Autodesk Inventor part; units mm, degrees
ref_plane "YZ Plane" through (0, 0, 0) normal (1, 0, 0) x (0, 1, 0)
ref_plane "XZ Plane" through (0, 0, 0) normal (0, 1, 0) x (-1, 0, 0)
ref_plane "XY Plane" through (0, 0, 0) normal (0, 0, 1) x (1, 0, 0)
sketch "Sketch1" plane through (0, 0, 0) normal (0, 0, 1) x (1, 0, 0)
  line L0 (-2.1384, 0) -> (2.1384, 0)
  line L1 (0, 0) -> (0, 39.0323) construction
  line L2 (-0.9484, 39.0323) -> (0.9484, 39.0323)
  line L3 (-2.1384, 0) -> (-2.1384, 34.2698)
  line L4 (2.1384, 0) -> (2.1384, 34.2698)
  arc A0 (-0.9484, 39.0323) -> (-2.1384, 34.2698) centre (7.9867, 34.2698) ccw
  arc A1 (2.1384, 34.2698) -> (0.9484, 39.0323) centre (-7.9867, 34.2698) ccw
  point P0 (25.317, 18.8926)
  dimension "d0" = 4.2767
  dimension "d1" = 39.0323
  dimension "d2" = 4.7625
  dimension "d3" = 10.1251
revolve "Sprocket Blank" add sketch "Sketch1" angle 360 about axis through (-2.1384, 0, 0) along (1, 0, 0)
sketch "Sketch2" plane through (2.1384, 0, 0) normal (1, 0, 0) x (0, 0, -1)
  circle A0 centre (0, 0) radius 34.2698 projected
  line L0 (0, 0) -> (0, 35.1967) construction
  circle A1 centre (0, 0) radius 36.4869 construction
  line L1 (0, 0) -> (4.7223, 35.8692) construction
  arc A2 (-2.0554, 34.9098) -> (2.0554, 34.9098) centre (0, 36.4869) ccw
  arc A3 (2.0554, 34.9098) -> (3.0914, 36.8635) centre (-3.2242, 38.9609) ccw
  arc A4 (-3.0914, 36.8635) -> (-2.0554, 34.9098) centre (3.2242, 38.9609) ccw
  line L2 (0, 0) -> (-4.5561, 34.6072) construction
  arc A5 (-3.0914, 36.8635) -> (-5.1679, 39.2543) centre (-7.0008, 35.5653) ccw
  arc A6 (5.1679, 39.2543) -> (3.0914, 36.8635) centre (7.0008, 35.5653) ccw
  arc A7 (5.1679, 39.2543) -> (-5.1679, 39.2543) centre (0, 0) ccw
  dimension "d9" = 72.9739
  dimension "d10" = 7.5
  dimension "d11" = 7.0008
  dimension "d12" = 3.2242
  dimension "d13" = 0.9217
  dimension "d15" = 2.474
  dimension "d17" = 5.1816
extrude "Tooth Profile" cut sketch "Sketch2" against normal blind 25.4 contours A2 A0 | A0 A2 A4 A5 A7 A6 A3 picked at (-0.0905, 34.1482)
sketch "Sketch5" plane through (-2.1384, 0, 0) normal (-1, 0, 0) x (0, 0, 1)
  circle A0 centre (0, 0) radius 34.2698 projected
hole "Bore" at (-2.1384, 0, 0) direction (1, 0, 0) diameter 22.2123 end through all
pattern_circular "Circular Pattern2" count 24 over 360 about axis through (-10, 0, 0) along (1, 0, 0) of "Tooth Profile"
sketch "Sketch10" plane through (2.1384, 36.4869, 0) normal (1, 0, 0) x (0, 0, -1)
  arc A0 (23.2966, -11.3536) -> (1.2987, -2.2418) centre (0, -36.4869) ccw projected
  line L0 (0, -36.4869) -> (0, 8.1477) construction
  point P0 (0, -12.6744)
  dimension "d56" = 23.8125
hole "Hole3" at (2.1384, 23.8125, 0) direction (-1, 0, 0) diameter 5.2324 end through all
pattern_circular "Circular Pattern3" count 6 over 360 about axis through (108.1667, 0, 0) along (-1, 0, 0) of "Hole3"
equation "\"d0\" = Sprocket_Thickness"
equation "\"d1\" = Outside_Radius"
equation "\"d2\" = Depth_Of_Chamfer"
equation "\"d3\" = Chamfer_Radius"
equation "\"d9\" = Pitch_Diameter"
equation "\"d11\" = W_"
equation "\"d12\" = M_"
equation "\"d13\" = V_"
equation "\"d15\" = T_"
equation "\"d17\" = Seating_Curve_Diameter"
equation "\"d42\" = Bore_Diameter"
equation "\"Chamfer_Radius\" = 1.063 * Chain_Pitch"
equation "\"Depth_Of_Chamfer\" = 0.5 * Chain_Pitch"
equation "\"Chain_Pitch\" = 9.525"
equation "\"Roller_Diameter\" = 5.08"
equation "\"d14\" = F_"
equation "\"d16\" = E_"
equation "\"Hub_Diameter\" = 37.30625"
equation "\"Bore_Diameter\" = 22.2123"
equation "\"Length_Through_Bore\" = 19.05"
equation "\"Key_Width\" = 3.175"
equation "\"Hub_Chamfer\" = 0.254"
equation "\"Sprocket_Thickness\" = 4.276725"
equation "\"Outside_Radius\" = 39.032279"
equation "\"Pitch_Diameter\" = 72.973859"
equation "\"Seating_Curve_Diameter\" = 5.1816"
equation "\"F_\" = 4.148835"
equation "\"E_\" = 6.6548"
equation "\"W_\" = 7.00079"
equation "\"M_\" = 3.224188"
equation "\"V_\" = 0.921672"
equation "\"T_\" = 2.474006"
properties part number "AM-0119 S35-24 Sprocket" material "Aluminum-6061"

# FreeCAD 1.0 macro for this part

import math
import FreeCAD as App
import Part
import Sketcher
from FreeCAD import Vector
Q = App.Units.Quantity

doc = App.newDocument("Part")
params = doc.addObject("Spreadsheet::Sheet", "Params")
for row, (alias, value) in enumerate([
    ("revolution_angle", "360 deg"),
    ("sketch2_radius", "0.102 in"),
    ("sketch2_radius2", "0.262 in"),
    ("pocket1_length", "1 in"),
    ("hole_diameter", "0.8745 in"),
    ("sketch4_diameter", "0.206 in"),
    ("hole2_diameter", "0.206 in"),
], start=1):
    params.set(f"A{row}", alias)
    params.set(f"B{row}", "=" + value)
    params.setAlias(f"B{row}", alias)

body = doc.addObject("PartDesign::Body", "Body")

# Sketch on XY plane
sketch1 = body.newObject("Sketcher::SketchObject", "Sketch")
sketch1.AttachmentSupport = (doc.getObject("XY_Plane"), [""])
sketch1.MapMode = "FlatFace"
sketch1.addGeometry([
    Part.LineSegment(Vector(-2.1, 34.3, 0), Vector(-2.1, 0, 0)),  # 0
    Part.LineSegment(Vector(-2.1, 0, 0), Vector(2.1, 0, 0)),  # 1
    Part.LineSegment(Vector(2.1, 0, 0), Vector(2.1, 34.3, 0)),  # 2
    Part.ArcOfCircle(Part.Circle(Vector(-8, 34.3, 0), Vector(0, 0, 1), 10.1), math.radians(0), math.radians(28)),  # 3
    Part.LineSegment(Vector(0.9, 39, 0), Vector(-0.9, 39, 0)),  # 4
    Part.ArcOfCircle(Part.Circle(Vector(8, 34.3, 0), Vector(0, 0, 1), 10.1), math.radians(152), math.radians(180)),  # 5
], False)
sketch1.addConstraint([
    Sketcher.Constraint("Coincident", 0, 2, 1, 1),
    Sketcher.Constraint("Coincident", 1, 2, 2, 1),
    Sketcher.Constraint("Tangent", 2, 2, 3, 1),
    Sketcher.Constraint("Coincident", 3, 2, 4, 1),
    Sketcher.Constraint("Coincident", 4, 2, 5, 1),
    Sketcher.Constraint("Tangent", 5, 2, 0, 1),
    Sketcher.Constraint("Vertical", 0),
    Sketcher.Constraint("Horizontal", 1),
    Sketcher.Constraint("Vertical", 2),
    Sketcher.Constraint("Horizontal", 4),
    Sketcher.Constraint("Equal", 3, 5),
    Sketcher.Constraint("Symmetric", 0, 2, 1, 2, -1, 1),
    Sketcher.Constraint("Horizontal", 3, 3, 5, 3),
    Sketcher.Constraint("Radius", 3, Q("10.125 mm")),
    Sketcher.Constraint("DistanceY", 2, 2, 3, 2, Q("0.1875 in")),
    Sketcher.Constraint("DistanceX", 1, 1, 1, 2, Q("4.2768 mm")),
    Sketcher.Constraint("DistanceY", -1, 1, 3, 2, Q("1.5367 in")),
])
revolution = body.newObject("PartDesign::Revolution", "Revolution")
revolution.Profile = sketch1
revolution.ReferenceAxis = (sketch1, ["H_Axis"])
revolution.setExpression("Angle", "Params.revolution_angle")

# Sketch on YZ plane
sketch2 = body.newObject("Sketcher::SketchObject", "Sketch001")
sketch2.AttachmentSupport = (doc.getObject("YZ_Plane"), [""])
sketch2.MapMode = "FlatFace"
sketch2.AttachmentOffset = App.Placement(Vector(0, 0, 0.084189 * 25.4), App.Rotation())
sketch2.addGeometry([
    Part.ArcOfCircle(Part.Circle(Vector(39, 3.2, 0), Vector(0, 0, 1), 6.7), math.radians(-127.5), math.radians(-108.37)),  # 0
    Part.ArcOfCircle(Part.Circle(Vector(35.6, -7, 0), Vector(0, 0, 1), 4.1), math.radians(26), math.radians(72)),  # 1
    Part.ArcOfCircle(Part.Circle(Vector(0, 0, 0), Vector(0, 0, 1), 39.6), math.radians(-7.5), math.radians(7.5)),  # 2
    Part.ArcOfCircle(Part.Circle(Vector(35.6, 7, 0), Vector(0, 0, 1), 4.1), math.radians(-72), math.radians(-26)),  # 3
    Part.ArcOfCircle(Part.Circle(Vector(39, -3.2, 0), Vector(0, 0, 1), 6.7), math.radians(108.37), math.radians(127.5)),  # 4
    Part.ArcOfCircle(Part.Circle(Vector(36.5, 0, 0), Vector(0, 0, 1), 2.6), math.radians(127), math.radians(233)),  # 5
], False)
sketch2.addConstraint([
    Sketcher.Constraint("Tangent", 0, 2, 1, 2),
    Sketcher.Constraint("Coincident", 1, 1, 2, 1),
    Sketcher.Constraint("Coincident", 2, 2, 3, 2),
    Sketcher.Constraint("Tangent", 3, 1, 4, 1),
    Sketcher.Constraint("Tangent", 4, 2, 5, 1),
    Sketcher.Constraint("Tangent", 5, 2, 0, 1),
    Sketcher.Constraint("Coincident", 2, 3, -1, 1),
    Sketcher.Constraint("Equal", 1, 3),
    Sketcher.Constraint("Equal", 0, 4),
    Sketcher.Constraint("Symmetric", 1, 3, 3, 3, -1),
    Sketcher.Constraint("PointOnObject", 5, 3, -1),
    Sketcher.Constraint("Radius", 5, Q("0.102 in")),
    Sketcher.Constraint("Radius", 0, Q("0.262 in")),
    Sketcher.Constraint("DistanceX", 5, 3, 0, 3, Q("0.0974 in")),
    Sketcher.Constraint("DistanceY", 1, 3, -1, 1, Q("7.0008 mm")),
    Sketcher.Constraint("Radius", 1, Q("4.1193 mm")),
    Sketcher.Constraint("Radius", 2, Q("39.593 mm")),
    Sketcher.Constraint("DistanceX", -1, 1, 0, 3, Q("1.5339 in")),
])
sketch2.setExpression("Constraints[11]", "Params.sketch2_radius")
sketch2.setExpression("Constraints[12]", "Params.sketch2_radius2")
pocket1 = body.newObject("PartDesign::Pocket", "Pocket")
pocket1.Profile = sketch2
pocket1.setExpression("Length", "Params.pocket1_length")

# Sketch on YZ plane
sketch3 = body.newObject("Sketcher::SketchObject", "Sketch002")
sketch3.AttachmentSupport = (doc.getObject("YZ_Plane"), [""])
sketch3.MapMode = "FlatFace"
sketch3.AttachmentOffset = App.Placement(Vector(0, 0, -0.084189 * 25.4), App.Rotation())
sketch3.addGeometry(Part.Circle(Vector(0, 0, 0), Vector(0, 0, 1), 11), False)
sketch3.addConstraint([
    Sketcher.Constraint("Coincident", 0, 3, -1, 1),
    Sketcher.Constraint("Diameter", 0, Q("0.8745 in")),
])
doc.recompute()
hole = body.newObject("PartDesign::Hole", "Hole")
hole.Profile = sketch3
hole.ThreadType = "None"
hole.setExpression("Diameter", "Params.hole_diameter")
hole.DepthType = "ThroughAll"
hole.Reversed = True
doc.recompute()

polarpattern = body.newObject("PartDesign::PolarPattern", "PolarPattern")
polarpattern.Originals = [pocket1]
polarpattern.Axis = (doc.getObject("X_Axis"), [""])
polarpattern.Angle = 360
polarpattern.Occurrences = 24
body.Tip = polarpattern

# Sketch on YZ plane
sketch4 = body.newObject("Sketcher::SketchObject", "Sketch003")
sketch4.AttachmentSupport = (doc.getObject("YZ_Plane"), [""])
sketch4.MapMode = "FlatFace"
sketch4.AttachmentOffset = App.Placement(Vector(0, 0, 0.084189 * 25.4), App.Rotation())
sketch4.addGeometry(Part.Circle(Vector(23.8, 0, 0), Vector(0, 0, 1), 2.6), False)
sketch4.addConstraint([
    Sketcher.Constraint("PointOnObject", 0, 3, -1),
    Sketcher.Constraint("Diameter", 0, Q("0.206 in")),
    Sketcher.Constraint("DistanceX", -1, 1, 0, 3, Q("0.9375 in")),
])
sketch4.setExpression("Constraints[1]", "Params.sketch4_diameter")
doc.recompute()
hole2 = body.newObject("PartDesign::Hole", "Hole001")
hole2.Profile = sketch4
hole2.ThreadType = "None"
hole2.setExpression("Diameter", "Params.hole2_diameter")
hole2.DepthType = "ThroughAll"
doc.recompute()

polarpattern2 = body.newObject("PartDesign::PolarPattern", "PolarPattern001")
polarpattern2.Originals = [hole2]
polarpattern2.Axis = (doc.getObject("X_Axis"), [""])
polarpattern2.Angle = 360
polarpattern2.Occurrences = 6
body.Tip = polarpattern2

doc.recompute()
